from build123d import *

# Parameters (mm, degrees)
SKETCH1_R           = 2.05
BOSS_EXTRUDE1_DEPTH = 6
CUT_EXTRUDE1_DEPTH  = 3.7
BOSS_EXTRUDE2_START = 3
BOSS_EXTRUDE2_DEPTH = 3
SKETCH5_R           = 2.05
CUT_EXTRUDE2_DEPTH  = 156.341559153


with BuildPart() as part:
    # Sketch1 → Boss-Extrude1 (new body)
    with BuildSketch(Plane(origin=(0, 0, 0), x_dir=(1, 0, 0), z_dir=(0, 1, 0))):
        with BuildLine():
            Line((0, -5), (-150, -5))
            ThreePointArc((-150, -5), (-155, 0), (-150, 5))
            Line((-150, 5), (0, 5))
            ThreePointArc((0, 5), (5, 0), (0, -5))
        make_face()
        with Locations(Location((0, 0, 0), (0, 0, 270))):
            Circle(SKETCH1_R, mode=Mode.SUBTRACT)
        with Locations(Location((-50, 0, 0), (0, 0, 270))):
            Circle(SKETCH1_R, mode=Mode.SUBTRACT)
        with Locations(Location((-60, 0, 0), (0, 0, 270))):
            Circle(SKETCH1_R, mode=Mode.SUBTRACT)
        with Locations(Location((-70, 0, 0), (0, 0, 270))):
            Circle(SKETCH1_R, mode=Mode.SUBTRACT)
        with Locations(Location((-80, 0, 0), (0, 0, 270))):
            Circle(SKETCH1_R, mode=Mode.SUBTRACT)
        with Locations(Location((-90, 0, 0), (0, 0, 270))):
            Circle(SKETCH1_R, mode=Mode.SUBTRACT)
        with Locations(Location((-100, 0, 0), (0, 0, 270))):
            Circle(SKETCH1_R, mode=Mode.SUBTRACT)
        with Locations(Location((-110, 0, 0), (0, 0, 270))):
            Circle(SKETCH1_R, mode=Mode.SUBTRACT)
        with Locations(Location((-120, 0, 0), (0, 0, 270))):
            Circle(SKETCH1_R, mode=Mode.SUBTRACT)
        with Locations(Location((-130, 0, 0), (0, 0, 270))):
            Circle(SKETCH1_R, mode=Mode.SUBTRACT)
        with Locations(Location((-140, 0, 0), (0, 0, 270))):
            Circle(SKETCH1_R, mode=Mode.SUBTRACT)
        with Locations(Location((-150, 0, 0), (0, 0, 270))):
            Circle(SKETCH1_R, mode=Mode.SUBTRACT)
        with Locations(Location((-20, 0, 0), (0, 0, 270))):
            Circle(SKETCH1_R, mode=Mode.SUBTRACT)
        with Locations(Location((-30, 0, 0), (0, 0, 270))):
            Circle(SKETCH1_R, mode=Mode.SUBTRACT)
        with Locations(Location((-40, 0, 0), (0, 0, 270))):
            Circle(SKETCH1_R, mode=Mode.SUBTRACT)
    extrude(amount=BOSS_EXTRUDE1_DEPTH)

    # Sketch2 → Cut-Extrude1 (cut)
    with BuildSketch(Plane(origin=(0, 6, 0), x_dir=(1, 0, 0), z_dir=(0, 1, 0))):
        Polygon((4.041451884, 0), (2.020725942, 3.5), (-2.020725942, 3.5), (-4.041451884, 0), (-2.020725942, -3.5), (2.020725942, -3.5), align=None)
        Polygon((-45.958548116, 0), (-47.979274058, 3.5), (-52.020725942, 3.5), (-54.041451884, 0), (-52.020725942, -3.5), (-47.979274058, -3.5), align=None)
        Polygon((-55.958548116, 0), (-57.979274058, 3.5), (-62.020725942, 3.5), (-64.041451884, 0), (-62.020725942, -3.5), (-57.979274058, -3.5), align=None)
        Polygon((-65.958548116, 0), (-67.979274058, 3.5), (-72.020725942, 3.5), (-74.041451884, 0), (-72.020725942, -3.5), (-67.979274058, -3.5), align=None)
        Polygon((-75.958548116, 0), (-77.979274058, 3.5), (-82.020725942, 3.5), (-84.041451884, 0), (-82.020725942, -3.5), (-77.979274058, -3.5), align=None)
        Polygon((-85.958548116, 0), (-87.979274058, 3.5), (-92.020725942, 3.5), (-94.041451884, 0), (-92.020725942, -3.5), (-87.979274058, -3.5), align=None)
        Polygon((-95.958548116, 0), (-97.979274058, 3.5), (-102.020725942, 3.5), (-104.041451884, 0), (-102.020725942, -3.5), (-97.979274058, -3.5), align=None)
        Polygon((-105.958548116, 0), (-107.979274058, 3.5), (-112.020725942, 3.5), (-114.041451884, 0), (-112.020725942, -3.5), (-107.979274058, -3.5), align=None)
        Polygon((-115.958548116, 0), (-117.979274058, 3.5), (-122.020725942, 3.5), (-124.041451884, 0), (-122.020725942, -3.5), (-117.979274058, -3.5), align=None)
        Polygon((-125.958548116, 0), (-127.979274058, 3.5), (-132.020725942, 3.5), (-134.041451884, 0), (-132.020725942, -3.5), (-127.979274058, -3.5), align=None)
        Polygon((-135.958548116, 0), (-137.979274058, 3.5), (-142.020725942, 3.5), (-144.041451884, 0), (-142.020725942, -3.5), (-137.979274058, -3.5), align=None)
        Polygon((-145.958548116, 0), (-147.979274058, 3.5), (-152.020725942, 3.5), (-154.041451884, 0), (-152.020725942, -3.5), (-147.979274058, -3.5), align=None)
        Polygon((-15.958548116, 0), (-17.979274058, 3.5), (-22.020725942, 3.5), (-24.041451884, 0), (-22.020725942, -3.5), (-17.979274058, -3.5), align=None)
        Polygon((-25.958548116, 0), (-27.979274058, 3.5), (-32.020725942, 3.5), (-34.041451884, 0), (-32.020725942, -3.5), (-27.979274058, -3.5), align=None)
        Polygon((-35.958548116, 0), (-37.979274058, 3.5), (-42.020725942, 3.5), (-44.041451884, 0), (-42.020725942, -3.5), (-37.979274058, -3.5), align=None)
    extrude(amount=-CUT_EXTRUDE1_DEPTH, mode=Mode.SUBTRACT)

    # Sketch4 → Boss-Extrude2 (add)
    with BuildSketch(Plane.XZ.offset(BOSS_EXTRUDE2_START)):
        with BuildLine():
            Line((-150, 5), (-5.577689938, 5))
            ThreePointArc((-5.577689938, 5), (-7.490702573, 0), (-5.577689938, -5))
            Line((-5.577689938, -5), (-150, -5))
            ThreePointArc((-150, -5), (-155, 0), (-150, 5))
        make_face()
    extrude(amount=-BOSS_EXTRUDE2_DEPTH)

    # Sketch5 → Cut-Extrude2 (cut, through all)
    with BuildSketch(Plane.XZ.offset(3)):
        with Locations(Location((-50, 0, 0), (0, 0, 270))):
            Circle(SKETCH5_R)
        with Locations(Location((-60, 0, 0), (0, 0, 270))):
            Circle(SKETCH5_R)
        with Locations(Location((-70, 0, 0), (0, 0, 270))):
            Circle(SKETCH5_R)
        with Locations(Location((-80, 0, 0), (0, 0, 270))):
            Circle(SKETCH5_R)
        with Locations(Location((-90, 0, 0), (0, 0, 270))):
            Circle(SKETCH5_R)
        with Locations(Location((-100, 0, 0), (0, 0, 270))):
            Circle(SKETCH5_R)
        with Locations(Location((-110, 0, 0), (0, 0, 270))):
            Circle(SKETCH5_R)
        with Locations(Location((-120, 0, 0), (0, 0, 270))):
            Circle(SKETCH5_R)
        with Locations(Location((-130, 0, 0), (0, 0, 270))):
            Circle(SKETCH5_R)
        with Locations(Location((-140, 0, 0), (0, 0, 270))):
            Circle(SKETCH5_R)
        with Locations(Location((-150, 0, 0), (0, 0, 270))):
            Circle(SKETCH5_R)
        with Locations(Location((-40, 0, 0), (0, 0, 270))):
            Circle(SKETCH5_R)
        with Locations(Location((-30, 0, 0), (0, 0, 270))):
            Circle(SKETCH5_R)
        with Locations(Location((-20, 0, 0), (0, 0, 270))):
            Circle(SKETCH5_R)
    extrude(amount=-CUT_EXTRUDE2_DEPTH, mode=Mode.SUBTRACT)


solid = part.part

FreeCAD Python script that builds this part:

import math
import FreeCAD as App
import Part
import Sketcher
Q = App.Units.Quantity


def add_polygon(sketch, points):
    """Adds a closed chain of lines whose ends are joined by coincident constraints."""
    first, n = sketch.GeometryCount, len(points)
    for a, b in zip(points, points[1:] + points[:1]):
        sketch.addGeometry(Part.LineSegment(App.Vector(*a, 0), App.Vector(*b, 0)), False)
    for i in range(n):
        sketch.addConstraint(Sketcher.Constraint("Coincident", first + i, 2, first + (i + 1) % n, 1))

doc = App.newDocument("Part")
body = doc.addObject("PartDesign::Body", "Body")

sketch1 = body.newObject("Sketcher::SketchObject", "Sketch")
sketch1.AttachmentSupport = (doc.getObject("XZ_Plane"), [""])
sketch1.MapMode = "FlatFace"
sketch1.addGeometry([
    Part.LineSegment(App.Vector(-150, 5, 0), App.Vector(0, 5, 0)),
    Part.ArcOfCircle(Part.Circle(App.Vector(0, 0, 0), App.Vector(0, 0, 1), 5), math.radians(-90), math.radians(90)),
    Part.LineSegment(App.Vector(0, -5, 0), App.Vector(-150, -5, 0)),
    Part.ArcOfCircle(Part.Circle(App.Vector(-150, 0, 0), App.Vector(0, 0, 1), 5), math.radians(90), math.radians(270)),
    Part.Circle(App.Vector(0, 0, 0), App.Vector(0, 0, 1), 2.05),
    Part.Circle(App.Vector(-20, 0, 0), App.Vector(0, 0, 1), 2.05),
    Part.Circle(App.Vector(-30, 0, 0), App.Vector(0, 0, 1), 2.05),
    Part.Circle(App.Vector(-40, 0, 0), App.Vector(0, 0, 1), 2.05),
    Part.Circle(App.Vector(-50, 0, 0), App.Vector(0, 0, 1), 2.05),
    Part.Circle(App.Vector(-60, 0, 0), App.Vector(0, 0, 1), 2.05),
    Part.Circle(App.Vector(-70, 0, 0), App.Vector(0, 0, 1), 2.05),
    Part.Circle(App.Vector(-80, 0, 0), App.Vector(0, 0, 1), 2.05),
    Part.Circle(App.Vector(-90, 0, 0), App.Vector(0, 0, 1), 2.05),
    Part.Circle(App.Vector(-100, 0, 0), App.Vector(0, 0, 1), 2.05),
    Part.Circle(App.Vector(-110, 0, 0), App.Vector(0, 0, 1), 2.05),
    Part.Circle(App.Vector(-120, 0, 0), App.Vector(0, 0, 1), 2.05),
    Part.Circle(App.Vector(-130, 0, 0), App.Vector(0, 0, 1), 2.05),
    Part.Circle(App.Vector(-140, 0, 0), App.Vector(0, 0, 1), 2.05),
    Part.Circle(App.Vector(-150, 0, 0), App.Vector(0, 0, 1), 2.05),
], False)
sketch1.addConstraint([
    Sketcher.Constraint("Tangent", 0, 2, 1, 2),
    Sketcher.Constraint("Tangent", 1, 1, 2, 1),
    Sketcher.Constraint("Tangent", 2, 2, 3, 2),
    Sketcher.Constraint("Tangent", 3, 1, 0, 1),
    Sketcher.Constraint("Horizontal", 0),
    Sketcher.Constraint("Horizontal", 2),
    Sketcher.Constraint("Coincident", 1, 3, -1, 1),
    Sketcher.Constraint("Coincident", 4, 3, -1, 1),
    Sketcher.Constraint("Coincident", 18, 3, 3, 3),
    Sketcher.Constraint("Equal", 4, 5),
    Sketcher.Constraint("Equal", 5, 6),
    Sketcher.Constraint("Equal", 6, 7),
    Sketcher.Constraint("Equal", 7, 8),
    Sketcher.Constraint("Equal", 8, 9),
    Sketcher.Constraint("Equal", 9, 10),
    Sketcher.Constraint("Equal", 10, 11),
    Sketcher.Constraint("Equal", 11, 12),
    Sketcher.Constraint("Equal", 12, 13),
    Sketcher.Constraint("Equal", 13, 14),
    Sketcher.Constraint("Equal", 14, 15),
    Sketcher.Constraint("Equal", 15, 16),
    Sketcher.Constraint("Equal", 16, 17),
    Sketcher.Constraint("Equal", 17, 18),
    Sketcher.Constraint("PointOnObject", 5, 3, -1),
    Sketcher.Constraint("PointOnObject", 6, 3, -1),
    Sketcher.Constraint("PointOnObject", 7, 3, -1),
    Sketcher.Constraint("PointOnObject", 8, 3, -1),
    Sketcher.Constraint("PointOnObject", 9, 3, -1),
    Sketcher.Constraint("PointOnObject", 10, 3, -1),
    Sketcher.Constraint("PointOnObject", 11, 3, -1),
    Sketcher.Constraint("PointOnObject", 12, 3, -1),
    Sketcher.Constraint("PointOnObject", 13, 3, -1),
    Sketcher.Constraint("PointOnObject", 14, 3, -1),
    Sketcher.Constraint("PointOnObject", 15, 3, -1),
    Sketcher.Constraint("PointOnObject", 16, 3, -1),
    Sketcher.Constraint("PointOnObject", 17, 3, -1),
    Sketcher.Constraint("Radius", 1, Q("5 mm")),
    Sketcher.Constraint("Diameter", 4, Q("4.1 mm")),
    Sketcher.Constraint("DistanceX", 0, 1, 0, 2, Q("150 mm")),
    Sketcher.Constraint("DistanceX", 5, 3, -1, 1, Q("20 mm")),
    Sketcher.Constraint("DistanceX", 6, 3, -1, 1, Q("30 mm")),
    Sketcher.Constraint("DistanceX", 7, 3, -1, 1, Q("40 mm")),
    Sketcher.Constraint("DistanceX", 8, 3, -1, 1, Q("50 mm")),
    Sketcher.Constraint("DistanceX", 9, 3, -1, 1, Q("60 mm")),
    Sketcher.Constraint("DistanceX", 10, 3, -1, 1, Q("70 mm")),
    Sketcher.Constraint("DistanceX", 11, 3, -1, 1, Q("80 mm")),
    Sketcher.Constraint("DistanceX", 12, 3, -1, 1, Q("90 mm")),
    Sketcher.Constraint("DistanceX", 13, 3, -1, 1, Q("100 mm")),
    Sketcher.Constraint("DistanceX", 14, 3, -1, 1, Q("110 mm")),
    Sketcher.Constraint("DistanceX", 15, 3, -1, 1, Q("120 mm")),
    Sketcher.Constraint("DistanceX", 16, 3, -1, 1, Q("130 mm")),
    Sketcher.Constraint("DistanceX", 17, 3, -1, 1, Q("140 mm")),
])
pad1 = body.newObject("PartDesign::Pad", "Pad")
pad1.Profile = sketch1
pad1.Length = 6
pad1.Reversed = True

sketch2 = body.newObject("Sketcher::SketchObject", "Sketch001")
sketch2.AttachmentSupport = (doc.getObject("XZ_Plane"), [""])
sketch2.MapMode = "FlatFace"
sketch2.AttachmentOffset = App.Placement(App.Vector(0, 0, -6), App.Rotation())
add_polygon(sketch2, [(4.041452, 0), (2.020726, -3.5), (-2.020726, -3.5), (-4.041452, 0), (-2.020726, 3.5), (2.020726, 3.5)])
add_polygon(sketch2, [(-45.958548, 0), (-47.979274, -3.5), (-52.020726, -3.5), (-54.041452, 0), (-52.020726, 3.5), (-47.979274, 3.5)])
add_polygon(sketch2, [(-55.958548, 0), (-57.979274, -3.5), (-62.020726, -3.5), (-64.041452, 0), (-62.020726, 3.5), (-57.979274, 3.5)])
add_polygon(sketch2, [(-65.958548, 0), (-67.979274, -3.5), (-72.020726, -3.5), (-74.041452, 0), (-72.020726, 3.5), (-67.979274, 3.5)])
add_polygon(sketch2, [(-75.958548, 0), (-77.979274, -3.5), (-82.020726, -3.5), (-84.041452, 0), (-82.020726, 3.5), (-77.979274, 3.5)])
add_polygon(sketch2, [(-85.958548, 0), (-87.979274, -3.5), (-92.020726, -3.5), (-94.041452, 0), (-92.020726, 3.5), (-87.979274, 3.5)])
add_polygon(sketch2, [(-95.958548, 0), (-97.979274, -3.5), (-102.020726, -3.5), (-104.041452, 0), (-102.020726, 3.5), (-97.979274, 3.5)])
add_polygon(sketch2, [(-105.958548, 0), (-107.979274, -3.5), (-112.020726, -3.5), (-114.041452, 0), (-112.020726, 3.5), (-107.979274, 3.5)])
add_polygon(sketch2, [(-115.958548, 0), (-117.979274, -3.5), (-122.020726, -3.5), (-124.041452, 0), (-122.020726, 3.5), (-117.979274, 3.5)])
add_polygon(sketch2, [(-125.958548, 0), (-127.979274, -3.5), (-132.020726, -3.5), (-134.041452, 0), (-132.020726, 3.5), (-127.979274, 3.5)])
add_polygon(sketch2, [(-135.958548, 0), (-137.979274, -3.5), (-142.020726, -3.5), (-144.041452, 0), (-142.020726, 3.5), (-137.979274, 3.5)])
add_polygon(sketch2, [(-145.958548, 0), (-147.979274, -3.5), (-152.020726, -3.5), (-154.041452, 0), (-152.020726, 3.5), (-147.979274, 3.5)])
add_polygon(sketch2, [(-15.958548, 0), (-17.979274, -3.5), (-22.020726, -3.5), (-24.041452, 0), (-22.020726, 3.5), (-17.979274, 3.5)])
add_polygon(sketch2, [(-25.958548, 0), (-27.979274, -3.5), (-32.020726, -3.5), (-34.041452, 0), (-32.020726, 3.5), (-27.979274, 3.5)])
add_polygon(sketch2, [(-35.958548, 0), (-37.979274, -3.5), (-42.020726, -3.5), (-44.041452, 0), (-42.020726, 3.5), (-37.979274, 3.5)])
sketch2.addConstraint([
    Sketcher.Constraint("Horizontal", 1),
    Sketcher.Constraint("Horizontal", 4),
    Sketcher.Constraint("Horizontal", 7),
    Sketcher.Constraint("Horizontal", 10),
    Sketcher.Constraint("Horizontal", 13),
    Sketcher.Constraint("Horizontal", 16),
    Sketcher.Constraint("Horizontal", 19),
    Sketcher.Constraint("Horizontal", 22),
    Sketcher.Constraint("Horizontal", 25),
    Sketcher.Constraint("Horizontal", 28),
    Sketcher.Constraint("Horizontal", 31),
    Sketcher.Constraint("Horizontal", 34),
    Sketcher.Constraint("Horizontal", 37),
    Sketcher.Constraint("Horizontal", 40),
    Sketcher.Constraint("Horizontal", 43),
    Sketcher.Constraint("Horizontal", 46),
    Sketcher.Constraint("Horizontal", 49),
    Sketcher.Constraint("Horizontal", 52),
    Sketcher.Constraint("Horizontal", 55),
    Sketcher.Constraint("Horizontal", 58),
    Sketcher.Constraint("Horizontal", 61),
    Sketcher.Constraint("Horizontal", 64),
    Sketcher.Constraint("Horizontal", 67),
    Sketcher.Constraint("Horizontal", 70),
    Sketcher.Constraint("Horizontal", 73),
    Sketcher.Constraint("Horizontal", 76),
    Sketcher.Constraint("Horizontal", 79),
    Sketcher.Constraint("Horizontal", 82),
    Sketcher.Constraint("Horizontal", 85),
    Sketcher.Constraint("Horizontal", 88),
    Sketcher.Constraint("Symmetric", 0, 2, 3, 2, -1, 1),
    Sketcher.Constraint("Symmetric", 2, 2, 5, 2, -1, 1),
    Sketcher.Constraint("Symmetric", 7, 2, 9, 2, -1),
    Sketcher.Constraint("Symmetric", 13, 2, 15, 2, -1),
    Sketcher.Constraint("Symmetric", 19, 2, 21, 2, -1),
    Sketcher.Constraint("Symmetric", 25, 2, 27, 2, -1),
    Sketcher.Constraint("Symmetric", 31, 2, 33, 2, -1),
    Sketcher.Constraint("Symmetric", 37, 2, 39, 2, -1),
    Sketcher.Constraint("Symmetric", 43, 2, 45, 2, -1),
    Sketcher.Constraint("Symmetric", 49, 2, 51, 2, -1),
    Sketcher.Constraint("Symmetric", 55, 2, 57, 2, -1),
    Sketcher.Constraint("Symmetric", 61, 2, 63, 2, -1),
    Sketcher.Constraint("Symmetric", 67, 2, 69, 2, -1),
    Sketcher.Constraint("Symmetric", 73, 2, 75, 2, -1),
    Sketcher.Constraint("Symmetric", 79, 2, 81, 2, -1),
    Sketcher.Constraint("Symmetric", 85, 2, 87, 2, -1),
    Sketcher.Constraint("PointOnObject", 2, 2, -1),
    Sketcher.Constraint("PointOnObject", 8, 2, -1),
    Sketcher.Constraint("PointOnObject", 11, 2, -1),
    Sketcher.Constraint("PointOnObject", 14, 2, -1),
    Sketcher.Constraint("PointOnObject", 17, 2, -1),
    Sketcher.Constraint("PointOnObject", 20, 2, -1),
    Sketcher.Constraint("PointOnObject", 23, 2, -1),
    Sketcher.Constraint("PointOnObject", 26, 2, -1),
    Sketcher.Constraint("PointOnObject", 29, 2, -1),
    Sketcher.Constraint("PointOnObject", 32, 2, -1),
    Sketcher.Constraint("PointOnObject", 35, 2, -1),
    Sketcher.Constraint("PointOnObject", 38, 2, -1),
    Sketcher.Constraint("PointOnObject", 41, 2, -1),
    Sketcher.Constraint("PointOnObject", 44, 2, -1),
    Sketcher.Constraint("PointOnObject", 47, 2, -1),
    Sketcher.Constraint("PointOnObject", 50, 2, -1),
    Sketcher.Constraint("PointOnObject", 53, 2, -1),
    Sketcher.Constraint("PointOnObject", 56, 2, -1),
    Sketcher.Constraint("PointOnObject", 59, 2, -1),
    Sketcher.Constraint("PointOnObject", 62, 2, -1),
    Sketcher.Constraint("PointOnObject", 65, 2, -1),
    Sketcher.Constraint("PointOnObject", 68, 2, -1),
    Sketcher.Constraint("PointOnObject", 71, 2, -1),
    Sketcher.Constraint("PointOnObject", 74, 2, -1),
    Sketcher.Constraint("PointOnObject", 77, 2, -1),
    Sketcher.Constraint("PointOnObject", 80, 2, -1),
    Sketcher.Constraint("PointOnObject", 83, 2, -1),
    Sketcher.Constraint("PointOnObject", 86, 2, -1),
    Sketcher.Constraint("PointOnObject", 89, 2, -1),
    Sketcher.Constraint("Parallel", 2, 5),
    Sketcher.Constraint("Parallel", 3, 6),
    Sketcher.Constraint("Parallel", 5, 8),
    Sketcher.Constraint("Parallel", 6, 9),
    Sketcher.Constraint("Parallel", 8, 11),
    Sketcher.Constraint("Parallel", 9, 12),
    Sketcher.Constraint("Parallel", 11, 14),
    Sketcher.Constraint("Parallel", 14, 17),
    Sketcher.Constraint("Parallel", 15, 18),
    Sketcher.Constraint("Parallel", 17, 20),
    Sketcher.Constraint("Parallel", 20, 23),
    Sketcher.Constraint("Parallel", 21, 24),
    Sketcher.Constraint("Parallel", 23, 26),
    Sketcher.Constraint("Parallel", 26, 29),
    Sketcher.Constraint("Parallel", 27, 30),
    Sketcher.Constraint("Parallel", 29, 32),
    Sketcher.Constraint("Parallel", 32, 35),
    Sketcher.Constraint("Parallel", 33, 36),
    Sketcher.Constraint("Parallel", 35, 38),
    Sketcher.Constraint("Parallel", 38, 41),
    Sketcher.Constraint("Parallel", 39, 42),
    Sketcher.Constraint("Parallel", 41, 44),
    Sketcher.Constraint("Parallel", 44, 47),
    Sketcher.Constraint("Parallel", 45, 48),
    Sketcher.Constraint("Parallel", 47, 50),
    Sketcher.Constraint("Parallel", 50, 53),
    Sketcher.Constraint("Parallel", 51, 54),
    Sketcher.Constraint("Parallel", 53, 56),
    Sketcher.Constraint("Parallel", 56, 59),
    Sketcher.Constraint("Parallel", 57, 60),
    Sketcher.Constraint("Parallel", 59, 62),
    Sketcher.Constraint("Parallel", 62, 65),
    Sketcher.Constraint("Parallel", 63, 66),
    Sketcher.Constraint("Parallel", 65, 68),
    Sketcher.Constraint("Parallel", 68, 71),
    Sketcher.Constraint("Parallel", 69, 72),
    Sketcher.Constraint("Parallel", 71, 74),
    Sketcher.Constraint("Parallel", 74, 77),
    Sketcher.Constraint("Parallel", 75, 78),
    Sketcher.Constraint("Parallel", 77, 80),
    Sketcher.Constraint("Parallel", 80, 83),
    Sketcher.Constraint("Parallel", 81, 84),
    Sketcher.Constraint("Parallel", 83, 86),
    Sketcher.Constraint("Parallel", 86, 89),
    Sketcher.Constraint("Horizontal", 1, 2, 6, 2),
    Sketcher.Constraint("Horizontal", 7, 2, 12, 2),
    Sketcher.Constraint("Horizontal", 13, 2, 18, 2),
    Sketcher.Constraint("Horizontal", 19, 2, 24, 2),
    Sketcher.Constraint("Horizontal", 25, 2, 30, 2),
    Sketcher.Constraint("Horizontal", 31, 2, 36, 2),
    Sketcher.Constraint("Horizontal", 37, 2, 42, 2),
    Sketcher.Constraint("Horizontal", 43, 2, 48, 2),
    Sketcher.Constraint("Horizontal", 49, 2, 54, 2),
    Sketcher.Constraint("Horizontal", 55, 2, 60, 2),
    Sketcher.Constraint("Horizontal", 61, 2, 66, 2),
    Sketcher.Constraint("Horizontal", 67, 2, 72, 2),
    Sketcher.Constraint("Horizontal", 73, 2, 78, 2),
    Sketcher.Constraint("Horizontal", 79, 2, 84, 2),
    Sketcher.Constraint("Equal", 4, 7),
    Sketcher.Constraint("Equal", 10, 13),
    Sketcher.Constraint("Equal", 16, 19),
    Sketcher.Constraint("Equal", 22, 25),
    Sketcher.Constraint("Equal", 28, 31),
    Sketcher.Constraint("Equal", 34, 37),
    Sketcher.Constraint("Equal", 40, 43),
    Sketcher.Constraint("Equal", 46, 49),
    Sketcher.Constraint("Equal", 52, 55),
    Sketcher.Constraint("Equal", 58, 61),
    Sketcher.Constraint("Equal", 64, 67),
    Sketcher.Constraint("Equal", 70, 73),
    Sketcher.Constraint("Equal", 76, 79),
    Sketcher.Constraint("Equal", 82, 85),
    Sketcher.Constraint("Angle", 0, Q("-120 deg")),
    Sketcher.Constraint("DistanceY", 0, 2, -1, 1, Q("3.5 mm")),
    Sketcher.Constraint("DistanceX", 1, 2, 1, 1, Q("4.041452 mm")),
    Sketcher.Constraint("DistanceX", 8, 2, -1, 1, Q("54.041452 mm")),
    Sketcher.Constraint("DistanceX", 14, 2, -1, 1, Q("64.041452 mm")),
    Sketcher.Constraint("DistanceX", 20, 2, -1, 1, Q("74.041452 mm")),
    Sketcher.Constraint("DistanceX", 26, 2, -1, 1, Q("84.041452 mm")),
    Sketcher.Constraint("DistanceX", 32, 2, -1, 1, Q("94.041452 mm")),
    Sketcher.Constraint("DistanceX", 38, 2, -1, 1, Q("104.041452 mm")),
    Sketcher.Constraint("DistanceX", 44, 2, -1, 1, Q("114.041452 mm")),
    Sketcher.Constraint("DistanceX", 50, 2, -1, 1, Q("124.041452 mm")),
    Sketcher.Constraint("DistanceX", 56, 2, -1, 1, Q("134.041452 mm")),
    Sketcher.Constraint("DistanceX", 62, 2, -1, 1, Q("144.041452 mm")),
    Sketcher.Constraint("DistanceX", 68, 2, -1, 1, Q("154.041452 mm")),
    Sketcher.Constraint("DistanceX", 74, 2, -1, 1, Q("24.041452 mm")),
    Sketcher.Constraint("DistanceX", 80, 2, -1, 1, Q("34.041452 mm")),
    Sketcher.Constraint("DistanceX", 86, 2, -1, 1, Q("44.041452 mm")),
])
pocket1 = body.newObject("PartDesign::Pocket", "Pocket")
pocket1.Profile = sketch2
pocket1.Length = 3.7
pocket1.Reversed = True

sketch3 = body.newObject("Sketcher::SketchObject", "Sketch002")
sketch3.AttachmentSupport = (doc.getObject("XZ_Plane"), [""])
sketch3.MapMode = "FlatFace"
sketch3.AttachmentOffset = App.Placement(App.Vector(0, 0, 3), App.Rotation())
sketch3.addGeometry([
    Part.LineSegment(App.Vector(-5.57769, 5, 0), App.Vector(-150, 5, 0)),
    Part.ArcOfCircle(Part.Circle(App.Vector(-150, 0, 0), App.Vector(0, 0, 1), 5), math.radians(90), math.radians(270)),
    Part.LineSegment(App.Vector(-150, -5, 0), App.Vector(-5.57769, -5, 0)),
    Part.ArcOfCircle(Part.Circle(App.Vector(0, 0, 0), App.Vector(0, 0, 1), 7.490703), math.radians(138.126046), math.radians(221.873954)),
], False)
sketch3.addConstraint([
    Sketcher.Constraint("Tangent", 0, 2, 1, 1),
    Sketcher.Constraint("Tangent", 1, 2, 2, 1),
    Sketcher.Constraint("Coincident", 2, 2, 3, 2),
    Sketcher.Constraint("Coincident", 3, 1, 0, 1),
    Sketcher.Constraint("Horizontal", 0),
    Sketcher.Constraint("Horizontal", 2),
    Sketcher.Constraint("Coincident", 3, 3, -1, 1),
    Sketcher.Constraint("PointOnObject", 1, 3, -1),
    Sketcher.Constraint("Radius", 1, Q("5 mm")),
    Sketcher.Constraint("DistanceX", 1, 3, -1, 1, Q("150 mm")),
    Sketcher.Constraint("Radius", 3, Q("7.490703 mm")),
])
pad2 = body.newObject("PartDesign::Pad", "Pad001")
pad2.Profile = sketch3
pad2.Length = 3
pad2.Reversed = True

sketch4 = body.newObject("Sketcher::SketchObject", "Sketch003")
sketch4.AttachmentSupport = (doc.getObject("XZ_Plane"), [""])
sketch4.MapMode = "FlatFace"
sketch4.AttachmentOffset = App.Placement(App.Vector(0, 0, 3), App.Rotation())
sketch4.addGeometry([
    Part.Circle(App.Vector(-50, 0, 0), App.Vector(0, 0, 1), 2.05),
    Part.Circle(App.Vector(-60, 0, 0), App.Vector(0, 0, 1), 2.05),
    Part.Circle(App.Vector(-70, 0, 0), App.Vector(0, 0, 1), 2.05),
    Part.Circle(App.Vector(-80, 0, 0), App.Vector(0, 0, 1), 2.05),
    Part.Circle(App.Vector(-90, 0, 0), App.Vector(0, 0, 1), 2.05),
    Part.Circle(App.Vector(-100, 0, 0), App.Vector(0, 0, 1), 2.05),
    Part.Circle(App.Vector(-110, 0, 0), App.Vector(0, 0, 1), 2.05),
    Part.Circle(App.Vector(-120, 0, 0), App.Vector(0, 0, 1), 2.05),
    Part.Circle(App.Vector(-130, 0, 0), App.Vector(0, 0, 1), 2.05),
    Part.Circle(App.Vector(-140, 0, 0), App.Vector(0, 0, 1), 2.05),
    Part.Circle(App.Vector(-150, 0, 0), App.Vector(0, 0, 1), 2.05),
    Part.Circle(App.Vector(-40, 0, 0), App.Vector(0, 0, 1), 2.05),
    Part.Circle(App.Vector(-30, 0, 0), App.Vector(0, 0, 1), 2.05),
    Part.Circle(App.Vector(-20, 0, 0), App.Vector(0, 0, 1), 2.05),
], False)
sketch4.addConstraint([
    Sketcher.Constraint("Equal", 0, 1),
    Sketcher.Constraint("Equal", 1, 2),
    Sketcher.Constraint("Equal", 2, 3),
    Sketcher.Constraint("Equal", 3, 4),
    Sketcher.Constraint("Equal", 4, 5),
    Sketcher.Constraint("Equal", 5, 6),
    Sketcher.Constraint("Equal", 6, 7),
    Sketcher.Constraint("Equal", 7, 8),
    Sketcher.Constraint("Equal", 8, 9),
    Sketcher.Constraint("Equal", 9, 10),
    Sketcher.Constraint("Equal", 10, 11),
    Sketcher.Constraint("Equal", 11, 12),
    Sketcher.Constraint("Equal", 12, 13),
    Sketcher.Constraint("PointOnObject", 0, 3, -1),
    Sketcher.Constraint("PointOnObject", 1, 3, -1),
    Sketcher.Constraint("PointOnObject", 2, 3, -1),
    Sketcher.Constraint("PointOnObject", 3, 3, -1),
    Sketcher.Constraint("PointOnObject", 4, 3, -1),
    Sketcher.Constraint("PointOnObject", 5, 3, -1),
    Sketcher.Constraint("PointOnObject", 6, 3, -1),
    Sketcher.Constraint("PointOnObject", 7, 3, -1),
    Sketcher.Constraint("PointOnObject", 8, 3, -1),
    Sketcher.Constraint("PointOnObject", 9, 3, -1),
    Sketcher.Constraint("PointOnObject", 10, 3, -1),
    Sketcher.Constraint("PointOnObject", 11, 3, -1),
    Sketcher.Constraint("PointOnObject", 12, 3, -1),
    Sketcher.Constraint("PointOnObject", 13, 3, -1),
    Sketcher.Constraint("Diameter", 0, Q("4.1 mm")),
    Sketcher.Constraint("DistanceX", 0, 3, -1, 1, Q("50 mm")),
    Sketcher.Constraint("DistanceX", 1, 3, -1, 1, Q("60 mm")),
    Sketcher.Constraint("DistanceX", 2, 3, -1, 1, Q("70 mm")),
    Sketcher.Constraint("DistanceX", 3, 3, -1, 1, Q("80 mm")),
    Sketcher.Constraint("DistanceX", 4, 3, -1, 1, Q("90 mm")),
    Sketcher.Constraint("DistanceX", 5, 3, -1, 1, Q("100 mm")),
    Sketcher.Constraint("DistanceX", 6, 3, -1, 1, Q("110 mm")),
    Sketcher.Constraint("DistanceX", 7, 3, -1, 1, Q("120 mm")),
    Sketcher.Constraint("DistanceX", 8, 3, -1, 1, Q("130 mm")),
    Sketcher.Constraint("DistanceX", 9, 3, -1, 1, Q("140 mm")),
    Sketcher.Constraint("DistanceX", 10, 3, -1, 1, Q("150 mm")),
    Sketcher.Constraint("DistanceX", 11, 3, -1, 1, Q("40 mm")),
    Sketcher.Constraint("DistanceX", 12, 3, -1, 1, Q("30 mm")),
    Sketcher.Constraint("DistanceX", 13, 3, -1, 1, Q("20 mm")),
])
pocket2 = body.newObject("PartDesign::Pocket", "Pocket001")
pocket2.Profile = sketch4
pocket2.Type = "ThroughAll"

doc.recompute()
